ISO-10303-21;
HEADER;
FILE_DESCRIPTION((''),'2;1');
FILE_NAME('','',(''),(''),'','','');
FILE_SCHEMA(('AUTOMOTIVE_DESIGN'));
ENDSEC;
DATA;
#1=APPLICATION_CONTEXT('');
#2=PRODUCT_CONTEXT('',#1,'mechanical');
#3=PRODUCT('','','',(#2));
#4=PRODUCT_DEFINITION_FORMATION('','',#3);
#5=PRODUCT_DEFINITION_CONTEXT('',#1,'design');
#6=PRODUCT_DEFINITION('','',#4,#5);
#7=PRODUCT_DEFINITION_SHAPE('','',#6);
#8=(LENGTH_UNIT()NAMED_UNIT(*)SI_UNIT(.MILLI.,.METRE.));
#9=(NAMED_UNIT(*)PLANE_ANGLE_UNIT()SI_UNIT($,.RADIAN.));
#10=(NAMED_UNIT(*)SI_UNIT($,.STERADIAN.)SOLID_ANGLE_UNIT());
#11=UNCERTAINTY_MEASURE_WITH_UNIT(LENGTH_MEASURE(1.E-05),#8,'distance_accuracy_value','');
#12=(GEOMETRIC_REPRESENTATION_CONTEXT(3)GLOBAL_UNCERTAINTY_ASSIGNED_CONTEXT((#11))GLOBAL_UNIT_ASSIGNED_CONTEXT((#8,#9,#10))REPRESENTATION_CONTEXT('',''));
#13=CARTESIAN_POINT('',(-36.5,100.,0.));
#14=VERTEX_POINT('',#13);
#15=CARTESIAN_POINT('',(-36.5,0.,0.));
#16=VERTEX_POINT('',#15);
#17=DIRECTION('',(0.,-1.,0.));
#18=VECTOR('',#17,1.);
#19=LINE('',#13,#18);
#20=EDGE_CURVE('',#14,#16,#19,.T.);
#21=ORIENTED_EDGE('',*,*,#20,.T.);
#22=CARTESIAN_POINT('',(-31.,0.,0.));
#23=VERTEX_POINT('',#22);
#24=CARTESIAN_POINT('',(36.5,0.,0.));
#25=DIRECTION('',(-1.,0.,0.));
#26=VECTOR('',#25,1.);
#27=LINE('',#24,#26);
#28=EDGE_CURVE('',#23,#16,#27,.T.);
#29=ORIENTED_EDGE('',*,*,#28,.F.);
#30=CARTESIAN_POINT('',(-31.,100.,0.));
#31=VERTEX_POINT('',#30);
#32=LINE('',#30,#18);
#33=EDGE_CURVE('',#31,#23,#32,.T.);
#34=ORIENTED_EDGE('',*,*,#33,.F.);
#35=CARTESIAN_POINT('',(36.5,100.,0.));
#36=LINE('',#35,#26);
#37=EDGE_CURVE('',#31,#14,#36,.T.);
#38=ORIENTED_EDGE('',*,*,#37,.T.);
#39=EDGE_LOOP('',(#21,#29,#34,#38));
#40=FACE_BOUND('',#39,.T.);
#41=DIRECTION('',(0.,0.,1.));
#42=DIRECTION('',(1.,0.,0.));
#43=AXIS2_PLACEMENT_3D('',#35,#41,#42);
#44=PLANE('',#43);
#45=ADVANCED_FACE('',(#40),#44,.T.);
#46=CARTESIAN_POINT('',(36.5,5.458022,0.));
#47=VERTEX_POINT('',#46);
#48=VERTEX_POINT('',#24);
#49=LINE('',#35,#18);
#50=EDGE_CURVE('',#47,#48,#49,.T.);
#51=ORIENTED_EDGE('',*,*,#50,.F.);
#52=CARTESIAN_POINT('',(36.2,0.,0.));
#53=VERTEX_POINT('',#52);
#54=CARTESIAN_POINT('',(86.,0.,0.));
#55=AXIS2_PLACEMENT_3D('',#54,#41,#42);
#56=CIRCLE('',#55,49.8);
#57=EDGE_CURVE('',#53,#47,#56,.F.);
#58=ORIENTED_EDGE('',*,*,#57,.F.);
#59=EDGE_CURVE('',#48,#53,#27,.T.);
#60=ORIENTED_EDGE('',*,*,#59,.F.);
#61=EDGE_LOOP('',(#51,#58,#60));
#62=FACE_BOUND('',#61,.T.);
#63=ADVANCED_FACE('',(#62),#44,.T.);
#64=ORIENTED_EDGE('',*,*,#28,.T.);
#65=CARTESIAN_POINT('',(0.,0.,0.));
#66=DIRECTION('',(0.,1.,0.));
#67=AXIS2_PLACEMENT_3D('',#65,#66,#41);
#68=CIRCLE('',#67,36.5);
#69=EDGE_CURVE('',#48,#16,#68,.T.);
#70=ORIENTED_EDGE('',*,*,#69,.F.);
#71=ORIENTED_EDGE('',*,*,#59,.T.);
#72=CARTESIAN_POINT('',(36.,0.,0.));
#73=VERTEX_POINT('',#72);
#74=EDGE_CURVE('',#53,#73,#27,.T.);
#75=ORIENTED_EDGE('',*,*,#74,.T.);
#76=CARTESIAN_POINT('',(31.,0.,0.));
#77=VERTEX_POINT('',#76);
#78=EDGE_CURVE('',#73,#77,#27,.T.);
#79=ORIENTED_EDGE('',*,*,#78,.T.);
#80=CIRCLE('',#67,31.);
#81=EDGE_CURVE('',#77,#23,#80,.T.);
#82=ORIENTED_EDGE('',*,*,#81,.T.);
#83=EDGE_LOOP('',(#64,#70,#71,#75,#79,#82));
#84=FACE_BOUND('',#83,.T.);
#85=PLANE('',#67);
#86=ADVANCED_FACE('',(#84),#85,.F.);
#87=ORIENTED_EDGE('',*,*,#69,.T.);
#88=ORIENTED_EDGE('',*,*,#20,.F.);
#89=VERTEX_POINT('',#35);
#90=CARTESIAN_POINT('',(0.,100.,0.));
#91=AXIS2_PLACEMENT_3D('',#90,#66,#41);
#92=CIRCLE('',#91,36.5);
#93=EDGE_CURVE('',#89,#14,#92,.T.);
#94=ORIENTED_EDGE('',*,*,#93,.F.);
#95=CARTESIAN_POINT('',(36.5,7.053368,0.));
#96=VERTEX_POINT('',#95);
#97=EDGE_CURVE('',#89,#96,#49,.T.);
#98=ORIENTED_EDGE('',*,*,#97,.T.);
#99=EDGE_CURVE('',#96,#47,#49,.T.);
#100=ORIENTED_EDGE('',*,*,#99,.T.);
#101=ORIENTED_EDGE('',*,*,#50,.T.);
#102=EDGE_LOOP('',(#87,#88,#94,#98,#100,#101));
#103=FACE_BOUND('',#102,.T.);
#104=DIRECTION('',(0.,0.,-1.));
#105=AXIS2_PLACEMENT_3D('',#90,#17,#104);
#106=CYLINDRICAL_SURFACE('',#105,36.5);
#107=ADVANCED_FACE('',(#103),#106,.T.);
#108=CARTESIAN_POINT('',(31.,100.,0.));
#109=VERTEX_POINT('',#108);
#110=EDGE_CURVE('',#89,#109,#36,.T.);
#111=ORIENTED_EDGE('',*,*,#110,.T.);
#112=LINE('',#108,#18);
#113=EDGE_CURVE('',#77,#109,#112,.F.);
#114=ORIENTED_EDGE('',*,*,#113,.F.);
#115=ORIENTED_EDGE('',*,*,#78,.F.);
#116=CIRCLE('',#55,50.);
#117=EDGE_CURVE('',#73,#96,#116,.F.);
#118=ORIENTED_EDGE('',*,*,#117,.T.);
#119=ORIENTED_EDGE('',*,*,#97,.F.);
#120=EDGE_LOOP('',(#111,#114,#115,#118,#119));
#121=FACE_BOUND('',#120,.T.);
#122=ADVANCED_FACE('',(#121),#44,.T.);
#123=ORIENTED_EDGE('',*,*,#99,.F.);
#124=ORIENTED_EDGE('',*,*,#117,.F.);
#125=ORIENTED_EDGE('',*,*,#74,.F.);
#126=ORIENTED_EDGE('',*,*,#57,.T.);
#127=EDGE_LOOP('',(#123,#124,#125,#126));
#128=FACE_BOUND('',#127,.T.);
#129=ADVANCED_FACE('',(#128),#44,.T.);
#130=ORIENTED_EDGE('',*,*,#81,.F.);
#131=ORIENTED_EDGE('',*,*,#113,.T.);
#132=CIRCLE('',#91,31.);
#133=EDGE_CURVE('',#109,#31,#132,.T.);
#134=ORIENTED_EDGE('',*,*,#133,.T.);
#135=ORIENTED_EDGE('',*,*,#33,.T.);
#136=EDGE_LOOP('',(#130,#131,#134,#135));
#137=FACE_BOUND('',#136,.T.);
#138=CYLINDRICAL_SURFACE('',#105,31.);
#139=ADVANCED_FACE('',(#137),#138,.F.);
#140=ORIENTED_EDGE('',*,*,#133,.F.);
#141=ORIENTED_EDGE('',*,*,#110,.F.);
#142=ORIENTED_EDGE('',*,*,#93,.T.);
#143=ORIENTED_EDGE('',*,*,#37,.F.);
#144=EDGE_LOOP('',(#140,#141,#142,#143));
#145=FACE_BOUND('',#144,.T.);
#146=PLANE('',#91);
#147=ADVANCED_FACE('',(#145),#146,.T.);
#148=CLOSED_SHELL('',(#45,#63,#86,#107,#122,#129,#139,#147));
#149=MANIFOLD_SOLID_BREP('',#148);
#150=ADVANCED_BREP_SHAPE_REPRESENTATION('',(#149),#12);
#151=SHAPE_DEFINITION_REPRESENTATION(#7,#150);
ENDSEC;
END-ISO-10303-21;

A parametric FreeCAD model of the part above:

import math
import FreeCAD as App
import Part
import Sketcher
from FreeCAD import Vector

doc = App.newDocument("Part")
params = doc.addObject("Spreadsheet::Sheet", "Params")
for row, (alias, value) in enumerate([
    ("sketch1_diameter", "73 mm"),
    ("pad1_length", "100 mm"),
    ("sketch2_diameter", "62 mm"),
    ("sketch3_radius", "36.5 mm"),
], start=1):
    params.set(f"A{row}", alias)
    params.set(f"B{row}", "=" + value)
    params.setAlias(f"B{row}", alias)

body = doc.addObject("PartDesign::Body", "Body")

# Sketch on XZ plane
sketch1 = body.newObject("Sketcher::SketchObject", "Sketch")
sketch1.AttachmentSupport = (doc.getObject("XZ_Plane"), [""])
sketch1.MapMode = "FlatFace"
sketch1.addGeometry(Part.Circle(Vector(0, 0, 0), Vector(0, 0, 1), 36), False)
sketch1.addConstraint([
    Sketcher.Constraint("Coincident", 0, 3, -1, 1),
    Sketcher.Constraint("Diameter", 0, 73.0),
])
sketch1.setExpression("Constraints[1]", "Params.sketch1_diameter")
pad1 = body.newObject("PartDesign::Pad", "Pad")
pad1.Profile = sketch1
pad1.setExpression("Length", "Params.pad1_length")
pad1.Reversed = True

# Sketch on XZ plane
sketch2 = body.newObject("Sketcher::SketchObject", "Sketch001")
sketch2.AttachmentSupport = (doc.getObject("XZ_Plane"), [""])
sketch2.MapMode = "FlatFace"
sketch2.addGeometry(Part.Circle(Vector(0, 0, 0), Vector(0, 0, 1), 31), False)
sketch2.addConstraint([
    Sketcher.Constraint("Coincident", 0, 3, -1, 1),
    Sketcher.Constraint("Diameter", 0, 62.0),
])
sketch2.setExpression("Constraints[1]", "Params.sketch2_diameter")
pocket1 = body.newObject("PartDesign::Pocket", "Pocket")
pocket1.Profile = sketch2
pocket1.Type = "ThroughAll"

# Sketch on XZ plane
sketch3 = body.newObject("Sketcher::SketchObject", "Sketch002")
sketch3.AttachmentSupport = (doc.getObject("XZ_Plane"), [""])
sketch3.MapMode = "FlatFace"
sketch3.addGeometry([
    Part.LineSegment(Vector(36, 0, 0), Vector(-36, 0, 0)),
    Part.ArcOfCircle(Part.Circle(Vector(0, 0, 0), Vector(0, 0, 1), 36), math.radians(0), math.radians(180)),
], False)
sketch3.addConstraint([
    Sketcher.Constraint("Coincident", 0, 1, 1, 1),
    Sketcher.Constraint("Coincident", 1, 2, 0, 2),
    Sketcher.Constraint("Horizontal", 0),
    Sketcher.Constraint("Coincident", 1, 3, -1, 1),
    Sketcher.Constraint("PointOnObject", 0, 1, -1),
    Sketcher.Constraint("Radius", 1, 36.5),
])
sketch3.setExpression("Constraints[5]", "Params.sketch3_radius")
pocket2 = body.newObject("PartDesign::Pocket", "Pocket001")
pocket2.Profile = sketch3
pocket2.Type = "ThroughAll"

doc.recompute()
